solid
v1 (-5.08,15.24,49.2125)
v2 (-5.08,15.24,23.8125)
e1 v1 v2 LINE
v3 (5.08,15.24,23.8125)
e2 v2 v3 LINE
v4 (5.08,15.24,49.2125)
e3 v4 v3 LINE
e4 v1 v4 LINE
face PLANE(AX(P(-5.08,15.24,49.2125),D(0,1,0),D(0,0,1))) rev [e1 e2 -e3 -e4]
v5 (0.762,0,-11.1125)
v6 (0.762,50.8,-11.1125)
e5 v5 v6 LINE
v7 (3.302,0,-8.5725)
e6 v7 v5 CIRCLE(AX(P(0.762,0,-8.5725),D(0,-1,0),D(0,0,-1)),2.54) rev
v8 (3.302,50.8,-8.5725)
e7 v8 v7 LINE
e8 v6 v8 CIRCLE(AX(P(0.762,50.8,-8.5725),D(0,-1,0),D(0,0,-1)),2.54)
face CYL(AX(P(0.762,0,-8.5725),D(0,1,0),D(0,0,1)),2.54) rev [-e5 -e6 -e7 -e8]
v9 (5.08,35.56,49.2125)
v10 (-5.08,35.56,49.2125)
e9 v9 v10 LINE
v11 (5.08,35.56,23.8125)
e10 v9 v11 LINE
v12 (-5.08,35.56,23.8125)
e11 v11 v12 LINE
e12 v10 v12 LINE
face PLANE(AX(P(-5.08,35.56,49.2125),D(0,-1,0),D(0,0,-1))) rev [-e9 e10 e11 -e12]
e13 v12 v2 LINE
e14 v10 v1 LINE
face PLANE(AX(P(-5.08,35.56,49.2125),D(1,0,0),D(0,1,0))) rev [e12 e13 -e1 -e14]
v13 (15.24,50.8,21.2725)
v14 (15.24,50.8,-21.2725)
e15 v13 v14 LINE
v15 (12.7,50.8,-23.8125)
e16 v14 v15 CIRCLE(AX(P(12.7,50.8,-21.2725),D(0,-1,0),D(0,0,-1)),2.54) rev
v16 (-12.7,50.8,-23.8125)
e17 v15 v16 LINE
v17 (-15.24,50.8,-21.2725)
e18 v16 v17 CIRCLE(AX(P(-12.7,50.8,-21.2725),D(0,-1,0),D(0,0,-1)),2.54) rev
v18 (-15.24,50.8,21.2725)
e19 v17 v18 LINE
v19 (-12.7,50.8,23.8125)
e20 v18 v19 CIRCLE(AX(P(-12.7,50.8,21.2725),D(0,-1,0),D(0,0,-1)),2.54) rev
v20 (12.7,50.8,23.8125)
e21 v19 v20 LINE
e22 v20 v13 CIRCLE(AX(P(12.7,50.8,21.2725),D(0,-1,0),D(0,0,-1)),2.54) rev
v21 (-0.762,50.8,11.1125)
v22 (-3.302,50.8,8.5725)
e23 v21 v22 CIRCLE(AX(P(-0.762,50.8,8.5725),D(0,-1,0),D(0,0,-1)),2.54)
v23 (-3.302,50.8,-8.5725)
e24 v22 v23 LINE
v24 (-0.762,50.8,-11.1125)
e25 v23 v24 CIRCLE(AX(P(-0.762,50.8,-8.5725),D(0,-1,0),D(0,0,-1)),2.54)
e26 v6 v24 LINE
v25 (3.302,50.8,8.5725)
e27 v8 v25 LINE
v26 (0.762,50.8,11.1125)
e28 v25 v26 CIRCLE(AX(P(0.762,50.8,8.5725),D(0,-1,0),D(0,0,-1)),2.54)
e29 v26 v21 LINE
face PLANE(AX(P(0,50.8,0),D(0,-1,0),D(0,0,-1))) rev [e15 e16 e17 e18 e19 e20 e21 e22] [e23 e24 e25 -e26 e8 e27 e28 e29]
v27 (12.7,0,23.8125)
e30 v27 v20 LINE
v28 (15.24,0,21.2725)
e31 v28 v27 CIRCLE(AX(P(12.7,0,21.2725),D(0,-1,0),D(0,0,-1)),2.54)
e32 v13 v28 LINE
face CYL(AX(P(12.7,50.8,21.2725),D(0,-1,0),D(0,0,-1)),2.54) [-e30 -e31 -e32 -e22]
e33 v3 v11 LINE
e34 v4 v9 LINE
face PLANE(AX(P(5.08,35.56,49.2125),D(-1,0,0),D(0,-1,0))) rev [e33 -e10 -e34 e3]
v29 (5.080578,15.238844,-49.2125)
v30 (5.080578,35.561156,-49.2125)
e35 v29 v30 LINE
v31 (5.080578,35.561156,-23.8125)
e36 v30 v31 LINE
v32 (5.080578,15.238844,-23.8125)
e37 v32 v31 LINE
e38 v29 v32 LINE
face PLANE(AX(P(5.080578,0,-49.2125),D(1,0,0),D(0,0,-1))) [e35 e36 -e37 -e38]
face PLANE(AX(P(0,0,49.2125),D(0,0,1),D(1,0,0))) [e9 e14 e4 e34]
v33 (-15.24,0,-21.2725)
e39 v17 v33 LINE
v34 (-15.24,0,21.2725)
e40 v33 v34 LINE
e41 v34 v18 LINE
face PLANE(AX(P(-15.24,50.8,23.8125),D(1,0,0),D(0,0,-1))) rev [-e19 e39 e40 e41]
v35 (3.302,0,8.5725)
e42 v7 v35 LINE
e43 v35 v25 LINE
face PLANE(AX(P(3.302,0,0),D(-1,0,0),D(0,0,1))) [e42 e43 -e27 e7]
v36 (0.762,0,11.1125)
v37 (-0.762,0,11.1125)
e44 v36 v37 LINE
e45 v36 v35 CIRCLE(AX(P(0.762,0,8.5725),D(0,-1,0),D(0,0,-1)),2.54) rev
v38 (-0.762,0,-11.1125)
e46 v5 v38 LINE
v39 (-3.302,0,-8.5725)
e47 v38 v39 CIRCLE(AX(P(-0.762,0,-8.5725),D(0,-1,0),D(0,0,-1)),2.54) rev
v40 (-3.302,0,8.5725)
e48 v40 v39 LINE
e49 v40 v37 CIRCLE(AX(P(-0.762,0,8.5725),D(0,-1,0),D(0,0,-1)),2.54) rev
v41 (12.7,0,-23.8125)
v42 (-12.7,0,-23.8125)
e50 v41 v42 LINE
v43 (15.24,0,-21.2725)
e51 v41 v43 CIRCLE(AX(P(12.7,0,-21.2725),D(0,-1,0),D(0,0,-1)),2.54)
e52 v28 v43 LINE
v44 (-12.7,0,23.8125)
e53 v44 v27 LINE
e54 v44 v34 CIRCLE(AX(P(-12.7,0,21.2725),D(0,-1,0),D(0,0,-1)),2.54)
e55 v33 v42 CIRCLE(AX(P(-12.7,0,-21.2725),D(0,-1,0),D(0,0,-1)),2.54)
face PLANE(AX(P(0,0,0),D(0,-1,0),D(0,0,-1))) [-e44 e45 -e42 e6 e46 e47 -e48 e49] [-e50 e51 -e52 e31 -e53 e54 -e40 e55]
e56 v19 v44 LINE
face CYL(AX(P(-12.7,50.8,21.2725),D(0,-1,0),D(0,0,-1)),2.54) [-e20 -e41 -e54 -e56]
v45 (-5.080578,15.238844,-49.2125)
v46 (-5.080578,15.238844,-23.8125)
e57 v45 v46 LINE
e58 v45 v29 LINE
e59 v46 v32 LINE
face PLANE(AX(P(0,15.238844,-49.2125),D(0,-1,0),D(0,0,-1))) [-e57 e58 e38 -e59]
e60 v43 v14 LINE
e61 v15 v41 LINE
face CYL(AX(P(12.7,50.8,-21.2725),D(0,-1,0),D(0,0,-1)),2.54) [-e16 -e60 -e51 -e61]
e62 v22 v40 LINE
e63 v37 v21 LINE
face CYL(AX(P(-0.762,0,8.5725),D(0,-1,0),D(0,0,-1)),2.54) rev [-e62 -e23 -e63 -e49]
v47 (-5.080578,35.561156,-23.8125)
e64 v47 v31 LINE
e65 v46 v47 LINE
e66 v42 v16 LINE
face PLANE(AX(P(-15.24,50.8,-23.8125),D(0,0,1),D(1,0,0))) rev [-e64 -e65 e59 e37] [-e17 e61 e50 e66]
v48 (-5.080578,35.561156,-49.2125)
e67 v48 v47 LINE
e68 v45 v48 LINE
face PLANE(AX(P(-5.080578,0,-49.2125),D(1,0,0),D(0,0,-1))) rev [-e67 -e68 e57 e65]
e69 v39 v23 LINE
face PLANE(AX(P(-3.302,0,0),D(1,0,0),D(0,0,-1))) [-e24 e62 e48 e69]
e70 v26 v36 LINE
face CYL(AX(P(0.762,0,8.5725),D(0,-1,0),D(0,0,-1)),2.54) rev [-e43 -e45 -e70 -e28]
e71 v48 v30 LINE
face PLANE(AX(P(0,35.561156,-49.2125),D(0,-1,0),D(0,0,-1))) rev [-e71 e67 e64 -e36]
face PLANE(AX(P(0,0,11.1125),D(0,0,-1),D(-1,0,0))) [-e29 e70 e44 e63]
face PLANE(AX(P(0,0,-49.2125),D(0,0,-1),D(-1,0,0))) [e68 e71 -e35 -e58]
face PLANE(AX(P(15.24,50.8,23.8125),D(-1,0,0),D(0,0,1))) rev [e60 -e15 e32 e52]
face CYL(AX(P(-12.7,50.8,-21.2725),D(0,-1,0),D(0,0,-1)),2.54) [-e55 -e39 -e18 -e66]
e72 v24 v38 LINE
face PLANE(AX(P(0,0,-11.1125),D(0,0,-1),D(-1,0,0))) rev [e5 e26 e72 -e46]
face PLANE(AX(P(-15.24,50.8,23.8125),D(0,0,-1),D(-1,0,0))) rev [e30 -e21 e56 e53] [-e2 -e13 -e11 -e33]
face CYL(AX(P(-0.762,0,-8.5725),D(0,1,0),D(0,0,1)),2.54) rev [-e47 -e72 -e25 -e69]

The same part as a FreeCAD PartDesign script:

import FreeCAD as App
import Part
import Sketcher

V = App.Vector
Q = App.Units.Quantity


def edges_at(feature, points):
    """Names of the edges that pass closest to the given points."""
    edges = feature.Shape.Edges
    near = lambda p: min(range(len(edges)), key=lambda i: edges[i].distToShape(Part.Vertex(*p))[0])
    return sorted({f"Edge{near(p) + 1}" for p in points})

doc = App.newDocument("Part")
body = doc.addObject("PartDesign::Body", "Body")

# Sketch on XZ plane
sketch1 = body.newObject("Sketcher::SketchObject", "Sketch")
sketch1.AttachmentSupport = (doc.getObject("XZ_Plane"), [""])
sketch1.MapMode = "FlatFace"
sketch1.addGeometry(Part.LineSegment(V(-15, -24, 0), V(-15, 24, 0)), False)
sketch1.addGeometry(Part.LineSegment(V(-15, 24, 0), V(15, 24, 0)), False)
sketch1.addGeometry(Part.LineSegment(V(15, 24, 0), V(15, -24, 0)), False)
sketch1.addGeometry(Part.LineSegment(V(15, -24, 0), V(-15, -24, 0)), False)
sketch1.addConstraint(Sketcher.Constraint("Coincident", 0, 2, 1, 1))
sketch1.addConstraint(Sketcher.Constraint("Coincident", 1, 2, 2, 1))
sketch1.addConstraint(Sketcher.Constraint("Coincident", 2, 2, 3, 1))
sketch1.addConstraint(Sketcher.Constraint("Coincident", 3, 2, 0, 1))
sketch1.addConstraint(Sketcher.Constraint("Vertical", 0))
sketch1.addConstraint(Sketcher.Constraint("Horizontal", 1))
sketch1.addConstraint(Sketcher.Constraint("Vertical", 2))
sketch1.addConstraint(Sketcher.Constraint("Horizontal", 3))
sketch1.addConstraint(Sketcher.Constraint("Symmetric", 0, 2, 2, 2, -1, 1))
sketch1.addConstraint(Sketcher.Constraint("DistanceX", 1, 1, 1, 2, Q("1.2 in")))
sketch1.addConstraint(Sketcher.Constraint("DistanceY", 0, 1, 0, 2, Q("1.875 in")))
pad1 = body.newObject("PartDesign::Pad", "Pad")
pad1.Profile = sketch1
pad1.Length = Q("2 in")
pad1.Reversed = True

# Sketch on XZ plane
sketch2 = body.newObject("Sketcher::SketchObject", "Sketch001")
sketch2.AttachmentSupport = (doc.getObject("XZ_Plane"), [""])
sketch2.MapMode = "FlatFace"
sketch2.AttachmentOffset = App.Placement(V(0, 0, -2 * 25.4), App.Rotation())
sketch2.addGeometry(Part.LineSegment(V(-3, 11, 0), V(3, 11, 0)), False)
sketch2.addGeometry(Part.LineSegment(V(3, 11, 0), V(3, -11, 0)), False)
sketch2.addGeometry(Part.LineSegment(V(3, -11, 0), V(-3, -11, 0)), False)
sketch2.addGeometry(Part.LineSegment(V(-3, -11, 0), V(-3, 11, 0)), False)
sketch2.addConstraint(Sketcher.Constraint("Coincident", 0, 2, 1, 1))
sketch2.addConstraint(Sketcher.Constraint("Coincident", 1, 2, 2, 1))
sketch2.addConstraint(Sketcher.Constraint("Coincident", 2, 2, 3, 1))
sketch2.addConstraint(Sketcher.Constraint("Coincident", 3, 2, 0, 1))
sketch2.addConstraint(Sketcher.Constraint("Horizontal", 0))
sketch2.addConstraint(Sketcher.Constraint("Vertical", 1))
sketch2.addConstraint(Sketcher.Constraint("Horizontal", 2))
sketch2.addConstraint(Sketcher.Constraint("Vertical", 3))
sketch2.addConstraint(Sketcher.Constraint("Symmetric", 0, 2, 2, 2, -1, 1))
sketch2.addConstraint(Sketcher.Constraint("DistanceX", 0, 1, 0, 2, Q("0.26 in")))
sketch2.addConstraint(Sketcher.Constraint("DistanceY", 1, 2, 1, 1, Q("0.875 in")))
pocket1 = body.newObject("PartDesign::Pocket", "Pocket")
pocket1.Profile = sketch2
pocket1.Length = Q("2 in")
pocket1.Reversed = True
doc.recompute()

fillet = body.newObject("PartDesign::Fillet", "Fillet")
fillet.Base = (pocket1, edges_at(pocket1, [
    (-3.302, 25.4, 11.113),
    (-3.302, 25.4, -11.113),
    (3.302, 25.4, -11.113),
    (3.302, 25.4, 11.113),
]))
fillet.Radius = Q("0.1 in")
doc.recompute()

fillet2 = body.newObject("PartDesign::Fillet", "Fillet001")
fillet2.Base = (fillet, edges_at(fillet, [
    (15.24, 25.4, 23.812),
    (-15.24, 25.4, 23.812),
    (-15.24, 25.4, -23.812),
    (15.24, 25.4, -23.812),
]))
fillet2.Radius = Q("0.1 in")

# Sketch on XY plane
sketch3 = body.newObject("Sketcher::SketchObject", "Sketch002")
sketch3.AttachmentSupport = (doc.getObject("XY_Plane"), [""])
sketch3.MapMode = "FlatFace"
sketch3.AttachmentOffset = App.Placement(V(0, 0, -0.9375 * 25.4), App.Rotation())
sketch3.addGeometry(Part.LineSegment(V(5, 36, 0), V(5, 15, 0)), False)
sketch3.addGeometry(Part.LineSegment(V(5, 15, 0), V(-5, 15, 0)), False)
sketch3.addGeometry(Part.LineSegment(V(-5, 15, 0), V(-5, 36, 0)), False)
sketch3.addGeometry(Part.LineSegment(V(-5, 36, 0), V(5, 36, 0)), False)
sketch3.addConstraint(Sketcher.Constraint("Coincident", 0, 2, 1, 1))
sketch3.addConstraint(Sketcher.Constraint("Coincident", 1, 2, 2, 1))
sketch3.addConstraint(Sketcher.Constraint("Coincident", 2, 2, 3, 1))
sketch3.addConstraint(Sketcher.Constraint("Coincident", 3, 2, 0, 1))
sketch3.addConstraint(Sketcher.Constraint("Vertical", 0))
sketch3.addConstraint(Sketcher.Constraint("Horizontal", 1))
sketch3.addConstraint(Sketcher.Constraint("Vertical", 2))
sketch3.addConstraint(Sketcher.Constraint("Horizontal", 3))
sketch3.addConstraint(Sketcher.Constraint("DistanceX", 1, 2, 1, 1, Q("10.161156 mm")))
sketch3.addConstraint(Sketcher.Constraint("DistanceY", 0, 2, 0, 1, Q("20.322313 mm")))
sketch3.addConstraint(Sketcher.Constraint("DistanceX", -1, 1, 0, 2, Q("5.080578 mm")))
sketch3.addConstraint(Sketcher.Constraint("DistanceY", -1, 1, 0, 2, Q("15.238844 mm")))
pad2 = body.newObject("PartDesign::Pad", "Pad001")
pad2.Profile = sketch3
pad2.Length = Q("1 in")
pad2.Reversed = True

# Sketch on XY plane
sketch4 = body.newObject("Sketcher::SketchObject", "Sketch003")
sketch4.AttachmentSupport = (doc.getObject("XY_Plane"), [""])
sketch4.MapMode = "FlatFace"
sketch4.AttachmentOffset = App.Placement(V(0, 0, 0.9375 * 25.4), App.Rotation())
sketch4.addGeometry(Part.LineSegment(V(-5, 36, 0), V(-5, 15, 0)), False)
sketch4.addGeometry(Part.LineSegment(V(-5, 15, 0), V(5, 15, 0)), False)
sketch4.addGeometry(Part.LineSegment(V(5, 15, 0), V(5, 36, 0)), False)
sketch4.addGeometry(Part.LineSegment(V(5, 36, 0), V(-5, 36, 0)), False)
sketch4.addConstraint(Sketcher.Constraint("Coincident", 0, 2, 1, 1))
sketch4.addConstraint(Sketcher.Constraint("Coincident", 1, 2, 2, 1))
sketch4.addConstraint(Sketcher.Constraint("Coincident", 2, 2, 3, 1))
sketch4.addConstraint(Sketcher.Constraint("Coincident", 3, 2, 0, 1))
sketch4.addConstraint(Sketcher.Constraint("Vertical", 0))
sketch4.addConstraint(Sketcher.Constraint("Horizontal", 1))
sketch4.addConstraint(Sketcher.Constraint("Vertical", 2))
sketch4.addConstraint(Sketcher.Constraint("Horizontal", 3))
sketch4.addConstraint(Sketcher.Constraint("DistanceX", 1, 1, 1, 2, Q("0.4 in")))
sketch4.addConstraint(Sketcher.Constraint("DistanceY", 0, 2, 0, 1, Q("0.8 in")))
sketch4.addConstraint(Sketcher.Constraint("DistanceX", 0, 2, -1, 1, Q("0.2 in")))
sketch4.addConstraint(Sketcher.Constraint("DistanceY", -1, 1, 0, 2, Q("0.6 in")))
pad3 = body.newObject("PartDesign::Pad", "Pad002")
pad3.Profile = sketch4
pad3.Length = Q("1 in")

doc.recompute()
